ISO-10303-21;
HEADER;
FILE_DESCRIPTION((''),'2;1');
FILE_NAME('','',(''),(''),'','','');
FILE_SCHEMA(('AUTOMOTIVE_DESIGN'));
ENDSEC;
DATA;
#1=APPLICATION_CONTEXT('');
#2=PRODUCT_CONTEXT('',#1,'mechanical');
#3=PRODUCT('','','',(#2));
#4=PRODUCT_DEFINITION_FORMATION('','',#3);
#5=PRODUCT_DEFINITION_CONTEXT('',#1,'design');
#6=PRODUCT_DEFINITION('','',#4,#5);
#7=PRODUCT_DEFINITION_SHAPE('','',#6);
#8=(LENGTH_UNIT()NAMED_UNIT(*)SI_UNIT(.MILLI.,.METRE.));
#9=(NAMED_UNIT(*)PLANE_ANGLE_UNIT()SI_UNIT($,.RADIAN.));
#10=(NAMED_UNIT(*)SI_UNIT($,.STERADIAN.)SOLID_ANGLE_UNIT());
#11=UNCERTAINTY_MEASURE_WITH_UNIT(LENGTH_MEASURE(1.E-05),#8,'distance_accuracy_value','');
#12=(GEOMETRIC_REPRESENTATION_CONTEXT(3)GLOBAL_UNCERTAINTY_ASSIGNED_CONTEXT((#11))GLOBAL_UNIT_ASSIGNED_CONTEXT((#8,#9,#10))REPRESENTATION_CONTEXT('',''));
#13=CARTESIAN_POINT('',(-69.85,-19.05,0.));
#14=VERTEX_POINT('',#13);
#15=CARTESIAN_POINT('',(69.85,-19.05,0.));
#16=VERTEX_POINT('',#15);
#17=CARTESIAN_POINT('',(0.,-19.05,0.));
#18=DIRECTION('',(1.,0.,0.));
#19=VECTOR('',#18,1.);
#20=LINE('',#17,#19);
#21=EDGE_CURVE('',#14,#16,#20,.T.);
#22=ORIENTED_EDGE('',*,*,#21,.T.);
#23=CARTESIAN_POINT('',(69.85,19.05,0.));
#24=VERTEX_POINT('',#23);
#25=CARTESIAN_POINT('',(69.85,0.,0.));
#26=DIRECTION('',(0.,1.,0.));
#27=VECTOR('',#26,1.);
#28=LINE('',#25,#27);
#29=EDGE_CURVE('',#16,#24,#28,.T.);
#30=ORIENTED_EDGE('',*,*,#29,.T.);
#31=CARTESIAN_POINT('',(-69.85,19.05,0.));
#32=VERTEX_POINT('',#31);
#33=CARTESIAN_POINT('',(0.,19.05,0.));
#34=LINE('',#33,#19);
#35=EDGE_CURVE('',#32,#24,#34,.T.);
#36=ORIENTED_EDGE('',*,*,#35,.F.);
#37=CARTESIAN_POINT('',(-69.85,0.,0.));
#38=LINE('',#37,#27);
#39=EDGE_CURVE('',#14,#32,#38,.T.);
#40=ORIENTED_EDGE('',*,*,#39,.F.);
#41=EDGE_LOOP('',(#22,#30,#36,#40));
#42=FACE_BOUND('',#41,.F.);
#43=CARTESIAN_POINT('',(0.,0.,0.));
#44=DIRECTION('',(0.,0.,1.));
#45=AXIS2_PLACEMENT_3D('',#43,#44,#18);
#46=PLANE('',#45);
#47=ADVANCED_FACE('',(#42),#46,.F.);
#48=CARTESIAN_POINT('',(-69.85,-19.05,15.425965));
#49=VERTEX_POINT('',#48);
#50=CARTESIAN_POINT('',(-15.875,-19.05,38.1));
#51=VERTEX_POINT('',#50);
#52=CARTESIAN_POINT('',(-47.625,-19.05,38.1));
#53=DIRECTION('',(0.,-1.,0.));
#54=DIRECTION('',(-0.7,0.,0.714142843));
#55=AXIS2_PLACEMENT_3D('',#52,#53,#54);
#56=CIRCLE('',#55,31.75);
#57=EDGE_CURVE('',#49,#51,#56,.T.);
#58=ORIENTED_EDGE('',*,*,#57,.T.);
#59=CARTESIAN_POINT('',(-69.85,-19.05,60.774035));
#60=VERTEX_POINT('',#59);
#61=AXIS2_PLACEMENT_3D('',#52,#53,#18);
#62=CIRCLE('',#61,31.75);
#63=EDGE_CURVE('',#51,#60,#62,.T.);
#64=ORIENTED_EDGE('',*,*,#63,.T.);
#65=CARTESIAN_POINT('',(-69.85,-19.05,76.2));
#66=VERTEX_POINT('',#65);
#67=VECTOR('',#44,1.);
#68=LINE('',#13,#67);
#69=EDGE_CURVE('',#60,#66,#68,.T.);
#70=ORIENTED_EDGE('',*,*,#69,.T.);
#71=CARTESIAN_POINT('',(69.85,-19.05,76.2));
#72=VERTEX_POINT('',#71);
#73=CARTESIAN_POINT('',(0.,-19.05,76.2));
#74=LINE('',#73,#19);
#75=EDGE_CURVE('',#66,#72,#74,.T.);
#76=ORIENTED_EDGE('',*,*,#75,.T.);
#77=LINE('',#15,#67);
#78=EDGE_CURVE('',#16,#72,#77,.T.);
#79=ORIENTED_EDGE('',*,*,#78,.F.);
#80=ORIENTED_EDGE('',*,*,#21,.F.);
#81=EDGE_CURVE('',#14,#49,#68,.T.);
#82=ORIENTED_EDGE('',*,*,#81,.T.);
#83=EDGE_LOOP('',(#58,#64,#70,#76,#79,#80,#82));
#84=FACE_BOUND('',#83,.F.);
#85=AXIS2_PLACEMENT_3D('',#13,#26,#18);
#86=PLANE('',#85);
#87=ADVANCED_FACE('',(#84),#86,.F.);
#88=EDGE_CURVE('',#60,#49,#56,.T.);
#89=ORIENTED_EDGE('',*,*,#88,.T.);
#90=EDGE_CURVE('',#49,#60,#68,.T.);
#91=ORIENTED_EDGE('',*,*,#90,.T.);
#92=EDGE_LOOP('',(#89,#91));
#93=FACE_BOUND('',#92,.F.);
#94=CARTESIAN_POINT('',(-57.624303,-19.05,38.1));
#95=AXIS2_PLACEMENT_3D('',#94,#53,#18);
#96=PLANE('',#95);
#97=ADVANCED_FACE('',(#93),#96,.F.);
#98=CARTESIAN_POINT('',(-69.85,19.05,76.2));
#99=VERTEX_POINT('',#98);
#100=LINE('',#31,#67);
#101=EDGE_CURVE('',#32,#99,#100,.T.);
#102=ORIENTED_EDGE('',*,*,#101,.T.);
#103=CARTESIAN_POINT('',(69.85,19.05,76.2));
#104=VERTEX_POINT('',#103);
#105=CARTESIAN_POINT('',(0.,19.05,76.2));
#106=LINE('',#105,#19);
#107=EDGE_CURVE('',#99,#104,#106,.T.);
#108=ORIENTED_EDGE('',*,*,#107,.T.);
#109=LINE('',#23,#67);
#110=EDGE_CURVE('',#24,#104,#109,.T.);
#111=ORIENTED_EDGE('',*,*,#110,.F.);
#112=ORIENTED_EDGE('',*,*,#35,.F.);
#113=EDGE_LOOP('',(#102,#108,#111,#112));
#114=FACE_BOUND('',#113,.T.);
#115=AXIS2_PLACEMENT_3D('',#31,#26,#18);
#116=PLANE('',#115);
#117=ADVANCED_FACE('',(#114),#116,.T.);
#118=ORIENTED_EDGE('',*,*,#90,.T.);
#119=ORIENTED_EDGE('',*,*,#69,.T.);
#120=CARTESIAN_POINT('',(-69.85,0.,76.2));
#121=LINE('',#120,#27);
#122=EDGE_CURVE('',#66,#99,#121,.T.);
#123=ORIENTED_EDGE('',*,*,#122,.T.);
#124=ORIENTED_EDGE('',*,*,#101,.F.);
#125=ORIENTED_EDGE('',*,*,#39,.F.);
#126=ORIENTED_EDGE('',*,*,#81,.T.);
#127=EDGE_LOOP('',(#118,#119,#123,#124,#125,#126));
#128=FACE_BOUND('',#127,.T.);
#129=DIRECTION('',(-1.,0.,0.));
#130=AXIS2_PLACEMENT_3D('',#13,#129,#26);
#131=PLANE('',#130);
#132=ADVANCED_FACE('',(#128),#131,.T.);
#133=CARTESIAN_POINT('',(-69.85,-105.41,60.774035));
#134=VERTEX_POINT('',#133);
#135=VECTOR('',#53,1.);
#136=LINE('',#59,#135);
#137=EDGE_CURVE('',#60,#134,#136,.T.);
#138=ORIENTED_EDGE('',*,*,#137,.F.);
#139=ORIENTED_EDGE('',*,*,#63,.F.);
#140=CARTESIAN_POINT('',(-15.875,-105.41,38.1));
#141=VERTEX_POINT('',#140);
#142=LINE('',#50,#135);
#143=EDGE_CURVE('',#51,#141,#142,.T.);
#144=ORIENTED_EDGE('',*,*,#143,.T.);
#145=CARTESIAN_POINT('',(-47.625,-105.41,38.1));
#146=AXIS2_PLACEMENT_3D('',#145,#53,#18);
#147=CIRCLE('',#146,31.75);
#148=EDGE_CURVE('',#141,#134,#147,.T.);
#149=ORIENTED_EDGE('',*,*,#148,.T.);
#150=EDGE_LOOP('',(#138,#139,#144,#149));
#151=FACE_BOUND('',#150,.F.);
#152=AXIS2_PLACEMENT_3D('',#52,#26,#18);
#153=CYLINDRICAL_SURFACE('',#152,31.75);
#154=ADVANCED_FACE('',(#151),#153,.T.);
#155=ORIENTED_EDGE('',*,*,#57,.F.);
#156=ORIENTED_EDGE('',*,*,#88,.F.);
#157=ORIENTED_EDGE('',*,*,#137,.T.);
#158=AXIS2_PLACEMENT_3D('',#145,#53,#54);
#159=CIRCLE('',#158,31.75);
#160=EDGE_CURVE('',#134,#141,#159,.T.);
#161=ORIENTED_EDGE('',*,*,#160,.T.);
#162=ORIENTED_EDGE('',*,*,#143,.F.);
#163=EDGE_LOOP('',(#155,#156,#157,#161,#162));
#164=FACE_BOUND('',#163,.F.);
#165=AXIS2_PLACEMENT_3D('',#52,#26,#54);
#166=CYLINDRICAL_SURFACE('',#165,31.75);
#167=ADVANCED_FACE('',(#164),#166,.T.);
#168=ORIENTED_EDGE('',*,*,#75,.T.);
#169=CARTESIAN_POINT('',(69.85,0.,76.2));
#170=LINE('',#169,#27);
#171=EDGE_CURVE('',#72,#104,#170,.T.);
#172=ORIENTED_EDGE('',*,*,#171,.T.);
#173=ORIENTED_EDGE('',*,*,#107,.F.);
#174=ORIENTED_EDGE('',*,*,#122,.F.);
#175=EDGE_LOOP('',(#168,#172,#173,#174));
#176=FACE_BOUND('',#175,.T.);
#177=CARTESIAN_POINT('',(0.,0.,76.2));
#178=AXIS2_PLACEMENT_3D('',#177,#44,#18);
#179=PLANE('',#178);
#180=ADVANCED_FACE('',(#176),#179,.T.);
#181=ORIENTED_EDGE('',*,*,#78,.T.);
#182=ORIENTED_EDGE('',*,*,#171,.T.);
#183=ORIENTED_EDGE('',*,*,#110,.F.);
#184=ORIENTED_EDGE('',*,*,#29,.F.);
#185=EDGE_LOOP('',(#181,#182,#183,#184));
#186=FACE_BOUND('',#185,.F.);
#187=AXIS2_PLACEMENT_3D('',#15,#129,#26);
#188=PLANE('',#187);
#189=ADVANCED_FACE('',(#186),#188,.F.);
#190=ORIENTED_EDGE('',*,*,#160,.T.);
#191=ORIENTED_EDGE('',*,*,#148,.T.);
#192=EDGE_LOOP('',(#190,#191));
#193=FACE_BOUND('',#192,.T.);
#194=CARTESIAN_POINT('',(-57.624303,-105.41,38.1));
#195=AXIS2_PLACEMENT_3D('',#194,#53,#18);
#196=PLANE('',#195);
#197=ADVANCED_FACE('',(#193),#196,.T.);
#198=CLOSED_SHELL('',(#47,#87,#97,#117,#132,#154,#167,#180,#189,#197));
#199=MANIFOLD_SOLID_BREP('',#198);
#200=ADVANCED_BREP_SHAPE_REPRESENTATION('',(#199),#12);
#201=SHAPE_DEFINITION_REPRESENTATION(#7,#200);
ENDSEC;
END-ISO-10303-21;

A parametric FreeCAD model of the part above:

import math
import FreeCAD as App
import Part
import Sketcher

V = App.Vector
Q = App.Units.Quantity

doc = App.newDocument("Part")
body = doc.addObject("PartDesign::Body", "Body")

sketch1 = body.newObject("Sketcher::SketchObject", "Sketch")
sketch1.AttachmentSupport = (doc.getObject("XY_Plane"), [""])
sketch1.MapMode = "FlatFace"
sketch1.addGeometry(Part.LineSegment(V(-69.85, 19.05, 0), V(-69.85, -19.05, 0)), False)
sketch1.addGeometry(Part.LineSegment(V(-69.85, -19.05, 0), V(69.85, -19.05, 0)), False)
sketch1.addGeometry(Part.LineSegment(V(69.85, -19.05, 0), V(69.85, 19.05, 0)), False)
sketch1.addGeometry(Part.LineSegment(V(69.85, 19.05, 0), V(-69.85, 19.05, 0)), False)
sketch1.addConstraint(Sketcher.Constraint("Coincident", 0, 2, 1, 1))
sketch1.addConstraint(Sketcher.Constraint("Coincident", 1, 2, 2, 1))
sketch1.addConstraint(Sketcher.Constraint("Coincident", 2, 2, 3, 1))
sketch1.addConstraint(Sketcher.Constraint("Coincident", 3, 2, 0, 1))
sketch1.addConstraint(Sketcher.Constraint("Vertical", 0))
sketch1.addConstraint(Sketcher.Constraint("Horizontal", 1))
sketch1.addConstraint(Sketcher.Constraint("Vertical", 2))
sketch1.addConstraint(Sketcher.Constraint("Horizontal", 3))
sketch1.addConstraint(Sketcher.Constraint("Symmetric", 0, 2, 2, 2, -1, 1))
sketch1.addConstraint(Sketcher.Constraint("DistanceX", 1, 1, 1, 2, Q("5.5 in")))
sketch1.addConstraint(Sketcher.Constraint("DistanceY", 0, 2, 0, 1, Q("1.5 in")))
pad1 = body.newObject("PartDesign::Pad", "Pad")
pad1.Profile = sketch1
pad1.Length = Q("3 in")

sketch2 = body.newObject("Sketcher::SketchObject", "Sketch001")
sketch2.AttachmentSupport = (doc.getObject("XZ_Plane"), [""])
sketch2.MapMode = "FlatFace"
sketch2.AttachmentOffset = App.Placement(V(0, 0, 0.75 * 25.4), App.Rotation())
sketch2.addGeometry(Part.ArcOfCircle(Part.Circle(V(-47.625, 38.1, 0), V(0, 0, 1), 31.75), math.radians(0), math.radians(134.427004)), False)
sketch2.addGeometry(Part.ArcOfCircle(Part.Circle(V(-47.625, 38.1, 0), V(0, 0, 1), 31.75), math.radians(134.427004), math.radians(360)), False)
sketch2.addConstraint(Sketcher.Constraint("Tangent", 0, 1, 1, 2))
sketch2.addConstraint(Sketcher.Constraint("Coincident", 1, 1, 0, 2))
sketch2.addConstraint(Sketcher.Constraint("Horizontal", 1, 3, 0, 1))
sketch2.addConstraint(Sketcher.Constraint("Radius", 0, Q("1.25 in")))
sketch2.addConstraint(Sketcher.Constraint("DistanceY", -1, 1, 0, 3, Q("1.5 in")))
sketch2.addConstraint(Sketcher.Constraint("DistanceX", 1, 1, -1, 1, Q("2.75 in")))
sketch2.addConstraint(Sketcher.Constraint("DistanceX", 0, 3, -1, 1, Q("1.875 in")))
pad2 = body.newObject("PartDesign::Pad", "Pad001")
pad2.Profile = sketch2
pad2.Length = Q("3.4 in")

doc.recompute()
